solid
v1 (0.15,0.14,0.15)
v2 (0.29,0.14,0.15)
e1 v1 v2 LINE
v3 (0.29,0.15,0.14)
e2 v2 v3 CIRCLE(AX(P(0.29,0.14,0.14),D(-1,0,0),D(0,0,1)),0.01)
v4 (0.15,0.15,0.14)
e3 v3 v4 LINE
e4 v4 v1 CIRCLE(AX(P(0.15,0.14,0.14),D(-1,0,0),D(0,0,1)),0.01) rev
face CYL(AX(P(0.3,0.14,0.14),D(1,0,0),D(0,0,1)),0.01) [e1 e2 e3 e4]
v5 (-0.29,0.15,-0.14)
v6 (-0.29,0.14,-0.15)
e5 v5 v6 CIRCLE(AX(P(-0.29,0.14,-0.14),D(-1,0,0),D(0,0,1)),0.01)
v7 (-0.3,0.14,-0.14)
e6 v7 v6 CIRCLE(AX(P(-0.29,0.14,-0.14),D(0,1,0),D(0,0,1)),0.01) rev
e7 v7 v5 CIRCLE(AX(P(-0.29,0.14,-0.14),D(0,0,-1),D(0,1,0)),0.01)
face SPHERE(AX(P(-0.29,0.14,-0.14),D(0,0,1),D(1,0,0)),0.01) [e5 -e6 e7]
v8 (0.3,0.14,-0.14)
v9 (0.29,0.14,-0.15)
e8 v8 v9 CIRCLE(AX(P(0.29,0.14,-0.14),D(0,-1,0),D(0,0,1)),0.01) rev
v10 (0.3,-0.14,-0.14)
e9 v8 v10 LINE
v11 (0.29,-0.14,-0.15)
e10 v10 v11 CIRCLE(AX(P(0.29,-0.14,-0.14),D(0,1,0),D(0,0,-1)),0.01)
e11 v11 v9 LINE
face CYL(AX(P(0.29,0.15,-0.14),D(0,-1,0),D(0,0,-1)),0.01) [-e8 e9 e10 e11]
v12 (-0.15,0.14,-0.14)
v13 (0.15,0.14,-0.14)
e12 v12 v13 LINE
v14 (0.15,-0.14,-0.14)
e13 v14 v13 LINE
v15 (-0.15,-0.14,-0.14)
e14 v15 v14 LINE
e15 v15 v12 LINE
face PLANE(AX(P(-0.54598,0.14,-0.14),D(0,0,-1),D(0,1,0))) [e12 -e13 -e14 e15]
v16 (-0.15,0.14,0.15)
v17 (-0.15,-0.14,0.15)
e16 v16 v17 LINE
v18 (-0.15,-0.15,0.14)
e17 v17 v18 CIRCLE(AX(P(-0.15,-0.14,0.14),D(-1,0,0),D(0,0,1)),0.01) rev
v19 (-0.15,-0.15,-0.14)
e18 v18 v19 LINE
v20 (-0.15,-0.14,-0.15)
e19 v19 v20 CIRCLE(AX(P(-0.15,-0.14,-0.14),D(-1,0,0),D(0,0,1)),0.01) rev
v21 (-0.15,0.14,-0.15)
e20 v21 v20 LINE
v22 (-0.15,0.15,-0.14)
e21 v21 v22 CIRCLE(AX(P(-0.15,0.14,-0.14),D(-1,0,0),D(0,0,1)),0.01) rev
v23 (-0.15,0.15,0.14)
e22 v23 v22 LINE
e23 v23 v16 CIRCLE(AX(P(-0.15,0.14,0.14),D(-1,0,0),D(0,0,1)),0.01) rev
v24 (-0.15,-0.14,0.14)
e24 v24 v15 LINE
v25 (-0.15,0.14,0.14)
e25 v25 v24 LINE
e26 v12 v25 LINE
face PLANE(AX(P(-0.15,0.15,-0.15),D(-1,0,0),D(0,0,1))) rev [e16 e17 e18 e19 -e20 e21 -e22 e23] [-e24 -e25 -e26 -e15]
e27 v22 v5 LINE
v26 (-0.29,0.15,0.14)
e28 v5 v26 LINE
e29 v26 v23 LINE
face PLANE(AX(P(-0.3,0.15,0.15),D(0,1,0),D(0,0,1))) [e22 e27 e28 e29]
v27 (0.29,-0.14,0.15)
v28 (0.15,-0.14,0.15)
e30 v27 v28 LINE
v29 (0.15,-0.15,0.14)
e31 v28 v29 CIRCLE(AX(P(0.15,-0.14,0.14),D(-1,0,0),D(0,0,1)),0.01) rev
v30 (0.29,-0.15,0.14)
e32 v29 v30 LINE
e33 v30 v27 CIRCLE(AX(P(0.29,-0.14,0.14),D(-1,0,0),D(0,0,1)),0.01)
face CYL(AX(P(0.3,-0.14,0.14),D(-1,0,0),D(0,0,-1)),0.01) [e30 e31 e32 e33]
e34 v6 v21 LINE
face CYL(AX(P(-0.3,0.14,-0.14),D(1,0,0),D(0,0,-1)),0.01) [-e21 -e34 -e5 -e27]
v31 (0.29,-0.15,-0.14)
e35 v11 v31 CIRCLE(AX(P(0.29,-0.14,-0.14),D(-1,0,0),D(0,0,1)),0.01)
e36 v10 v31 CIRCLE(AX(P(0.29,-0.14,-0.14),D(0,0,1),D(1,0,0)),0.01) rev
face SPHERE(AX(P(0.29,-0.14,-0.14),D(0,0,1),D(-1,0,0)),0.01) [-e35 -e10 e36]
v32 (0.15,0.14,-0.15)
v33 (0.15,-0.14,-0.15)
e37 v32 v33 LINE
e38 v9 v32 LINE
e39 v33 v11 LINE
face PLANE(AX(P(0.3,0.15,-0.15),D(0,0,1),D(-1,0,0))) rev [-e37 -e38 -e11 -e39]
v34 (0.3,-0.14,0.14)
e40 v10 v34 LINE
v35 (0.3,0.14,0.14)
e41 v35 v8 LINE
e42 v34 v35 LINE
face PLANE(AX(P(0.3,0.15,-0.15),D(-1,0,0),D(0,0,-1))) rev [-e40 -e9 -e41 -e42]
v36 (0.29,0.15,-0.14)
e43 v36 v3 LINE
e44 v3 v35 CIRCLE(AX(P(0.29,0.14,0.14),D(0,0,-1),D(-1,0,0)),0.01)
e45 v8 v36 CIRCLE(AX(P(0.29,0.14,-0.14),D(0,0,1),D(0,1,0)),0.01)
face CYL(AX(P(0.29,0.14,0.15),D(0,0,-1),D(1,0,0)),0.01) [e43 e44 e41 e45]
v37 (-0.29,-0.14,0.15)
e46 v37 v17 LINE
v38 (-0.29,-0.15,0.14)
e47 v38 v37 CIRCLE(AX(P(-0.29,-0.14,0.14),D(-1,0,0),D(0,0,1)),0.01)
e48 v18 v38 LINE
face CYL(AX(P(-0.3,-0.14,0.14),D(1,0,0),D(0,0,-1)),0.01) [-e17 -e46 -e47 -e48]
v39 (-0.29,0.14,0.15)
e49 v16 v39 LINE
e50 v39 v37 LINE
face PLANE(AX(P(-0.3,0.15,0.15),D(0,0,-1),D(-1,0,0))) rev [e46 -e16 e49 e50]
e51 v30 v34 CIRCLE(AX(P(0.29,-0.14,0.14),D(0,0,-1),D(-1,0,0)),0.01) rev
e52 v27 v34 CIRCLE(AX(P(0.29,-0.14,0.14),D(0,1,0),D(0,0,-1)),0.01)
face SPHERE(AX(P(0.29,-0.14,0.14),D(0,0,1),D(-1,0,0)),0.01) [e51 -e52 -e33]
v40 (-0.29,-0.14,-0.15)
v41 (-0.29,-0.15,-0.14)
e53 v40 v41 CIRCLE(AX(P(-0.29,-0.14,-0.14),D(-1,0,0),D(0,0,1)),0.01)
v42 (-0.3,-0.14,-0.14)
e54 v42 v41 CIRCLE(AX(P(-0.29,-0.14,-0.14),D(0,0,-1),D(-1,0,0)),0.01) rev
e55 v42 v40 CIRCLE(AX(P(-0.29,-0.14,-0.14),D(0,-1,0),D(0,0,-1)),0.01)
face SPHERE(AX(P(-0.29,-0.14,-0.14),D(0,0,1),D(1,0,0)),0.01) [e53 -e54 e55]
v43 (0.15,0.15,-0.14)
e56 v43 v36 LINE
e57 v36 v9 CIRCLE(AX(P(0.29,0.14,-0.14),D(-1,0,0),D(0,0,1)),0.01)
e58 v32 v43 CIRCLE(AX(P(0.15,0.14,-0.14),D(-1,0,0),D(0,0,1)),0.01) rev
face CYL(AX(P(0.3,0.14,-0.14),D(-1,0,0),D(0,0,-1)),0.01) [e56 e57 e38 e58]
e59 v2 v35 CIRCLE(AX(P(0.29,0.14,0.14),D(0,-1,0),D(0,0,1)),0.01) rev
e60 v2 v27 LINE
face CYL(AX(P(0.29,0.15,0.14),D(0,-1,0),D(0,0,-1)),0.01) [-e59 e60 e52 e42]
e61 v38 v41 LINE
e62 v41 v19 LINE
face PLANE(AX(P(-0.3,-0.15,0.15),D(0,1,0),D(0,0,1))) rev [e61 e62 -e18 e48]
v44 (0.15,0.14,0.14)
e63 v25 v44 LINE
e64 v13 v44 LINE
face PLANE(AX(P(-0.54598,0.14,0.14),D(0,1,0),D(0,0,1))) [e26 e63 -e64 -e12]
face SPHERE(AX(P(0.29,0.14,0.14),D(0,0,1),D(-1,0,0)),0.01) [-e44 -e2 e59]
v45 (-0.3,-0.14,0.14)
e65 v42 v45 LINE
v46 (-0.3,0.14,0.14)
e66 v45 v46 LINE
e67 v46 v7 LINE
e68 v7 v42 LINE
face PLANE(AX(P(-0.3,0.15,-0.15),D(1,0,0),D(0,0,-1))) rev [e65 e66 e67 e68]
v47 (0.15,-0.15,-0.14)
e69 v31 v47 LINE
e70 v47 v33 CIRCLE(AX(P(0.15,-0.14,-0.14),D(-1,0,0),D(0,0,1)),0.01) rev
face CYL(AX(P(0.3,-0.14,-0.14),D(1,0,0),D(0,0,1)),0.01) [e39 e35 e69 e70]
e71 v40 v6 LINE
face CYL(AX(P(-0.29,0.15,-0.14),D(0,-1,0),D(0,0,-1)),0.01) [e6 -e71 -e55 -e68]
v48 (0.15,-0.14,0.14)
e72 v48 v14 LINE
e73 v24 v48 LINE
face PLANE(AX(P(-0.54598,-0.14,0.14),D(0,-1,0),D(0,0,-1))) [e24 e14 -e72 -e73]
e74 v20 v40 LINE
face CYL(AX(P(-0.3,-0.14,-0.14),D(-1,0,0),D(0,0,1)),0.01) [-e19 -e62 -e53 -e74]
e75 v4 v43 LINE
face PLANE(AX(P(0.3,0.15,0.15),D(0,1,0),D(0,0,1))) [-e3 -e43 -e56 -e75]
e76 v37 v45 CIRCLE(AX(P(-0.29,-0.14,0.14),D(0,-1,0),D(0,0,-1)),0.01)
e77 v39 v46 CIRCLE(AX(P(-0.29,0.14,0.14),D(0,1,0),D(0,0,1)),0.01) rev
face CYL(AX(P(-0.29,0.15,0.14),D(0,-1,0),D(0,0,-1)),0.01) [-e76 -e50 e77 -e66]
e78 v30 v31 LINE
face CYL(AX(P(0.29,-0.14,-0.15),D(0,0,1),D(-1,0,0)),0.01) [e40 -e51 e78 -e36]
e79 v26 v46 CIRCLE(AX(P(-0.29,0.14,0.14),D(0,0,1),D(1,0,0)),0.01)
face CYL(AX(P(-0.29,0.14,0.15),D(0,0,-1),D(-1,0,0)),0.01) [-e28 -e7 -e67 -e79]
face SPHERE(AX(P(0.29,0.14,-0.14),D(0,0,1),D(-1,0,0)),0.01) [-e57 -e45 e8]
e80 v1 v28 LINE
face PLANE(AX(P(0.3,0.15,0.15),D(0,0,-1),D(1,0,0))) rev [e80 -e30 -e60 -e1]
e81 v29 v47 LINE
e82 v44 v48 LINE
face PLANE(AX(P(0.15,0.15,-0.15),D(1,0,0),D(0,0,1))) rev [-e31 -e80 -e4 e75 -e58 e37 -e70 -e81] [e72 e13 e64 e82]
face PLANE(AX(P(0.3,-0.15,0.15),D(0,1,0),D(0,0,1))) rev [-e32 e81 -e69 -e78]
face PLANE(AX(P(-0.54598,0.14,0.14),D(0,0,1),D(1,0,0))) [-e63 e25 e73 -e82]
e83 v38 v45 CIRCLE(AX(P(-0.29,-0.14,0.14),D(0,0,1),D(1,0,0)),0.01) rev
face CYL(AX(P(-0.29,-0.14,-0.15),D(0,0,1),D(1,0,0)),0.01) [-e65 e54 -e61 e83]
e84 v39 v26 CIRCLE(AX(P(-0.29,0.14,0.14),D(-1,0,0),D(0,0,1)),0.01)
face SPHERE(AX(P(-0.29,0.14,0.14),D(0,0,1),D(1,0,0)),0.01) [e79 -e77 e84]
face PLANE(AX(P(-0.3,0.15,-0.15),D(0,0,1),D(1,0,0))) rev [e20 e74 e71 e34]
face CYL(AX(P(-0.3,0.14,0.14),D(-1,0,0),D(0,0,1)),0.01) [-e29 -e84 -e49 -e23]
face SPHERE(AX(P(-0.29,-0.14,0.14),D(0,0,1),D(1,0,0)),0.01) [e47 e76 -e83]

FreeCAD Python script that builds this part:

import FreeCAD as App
import Part
import Sketcher
Q = App.Units.Quantity


def edges_at(feature, points):
    """Names of the edges that pass closest to the given points."""
    edges = feature.Shape.Edges
    near = lambda p: min(range(len(edges)), key=lambda i: edges[i].distToShape(Part.Vertex(*p))[0])
    return sorted({f"Edge{near(p) + 1}" for p in points})

doc = App.newDocument("Part")
body = doc.addObject("PartDesign::Body", "Body")

sketch1 = body.newObject("Sketcher::SketchObject", "Sketch")
sketch1.AttachmentSupport = (doc.getObject("XZ_Plane"), [""])
sketch1.MapMode = "FlatFace"
sketch1.addGeometry(Part.LineSegment(App.Vector(-0.3, -0.15, 0), App.Vector(-0.3, 0.15, 0)), False)
sketch1.addGeometry(Part.LineSegment(App.Vector(-0.3, 0.15, 0), App.Vector(-0.15, 0.15, 0)), False)
sketch1.addGeometry(Part.LineSegment(App.Vector(-0.15, 0.15, 0), App.Vector(-0.15, -0.15, 0)), False)
sketch1.addGeometry(Part.LineSegment(App.Vector(-0.15, -0.15, 0), App.Vector(-0.3, -0.15, 0)), False)
sketch1.addConstraint(Sketcher.Constraint("Coincident", 0, 2, 1, 1))
sketch1.addConstraint(Sketcher.Constraint("Coincident", 1, 2, 2, 1))
sketch1.addConstraint(Sketcher.Constraint("Coincident", 2, 2, 3, 1))
sketch1.addConstraint(Sketcher.Constraint("Coincident", 3, 2, 0, 1))
sketch1.addConstraint(Sketcher.Constraint("Vertical", 0))
sketch1.addConstraint(Sketcher.Constraint("Horizontal", 1))
sketch1.addConstraint(Sketcher.Constraint("Vertical", 2))
sketch1.addConstraint(Sketcher.Constraint("Horizontal", 3))
sketch1.addConstraint(Sketcher.Constraint("DistanceY", 0, 1, 0, 2, Q("0.3 mm")))
sketch1.addConstraint(Sketcher.Constraint("DistanceX", 1, 1, 1, 2, Q("0.15 mm")))
sketch1.addConstraint(Sketcher.Constraint("DistanceX", 0, 2, -1, 1, Q("0.3 mm")))
sketch1.addConstraint(Sketcher.Constraint("DistanceY", -1, 1, 0, 2, Q("0.15 mm")))
pad1 = body.newObject("PartDesign::Pad", "Pad")
pad1.Profile = sketch1
pad1.Length = 0.3
pad1.Midplane = True
doc.recompute()

fillet = body.newObject("PartDesign::Fillet", "Fillet")
fillet.Base = (pad1, edges_at(pad1, [
    (-0.225, 0.15, -0.15),
    (-0.3, 0.15, 0),
    (-0.225, -0.15, -0.15),
    (-0.225, -0.15, 0.15),
    (-0.3, -0.15, 0),
    (-0.225, 0.15, 0.15),
    (-0.3, 0, -0.15),
    (-0.3, 0, 0.15),
]))
fillet.Radius = 0.01

sketch2 = body.newObject("Sketcher::SketchObject", "Sketch001")
sketch2.AttachmentSupport = (doc.getObject("YZ_Plane"), [""])
sketch2.MapMode = "FlatFace"
sketch2.addGeometry(Part.LineSegment(App.Vector(0.14, 0.14, 0), App.Vector(-0.14, 0.14, 0)), False)
sketch2.addGeometry(Part.LineSegment(App.Vector(-0.14, 0.14, 0), App.Vector(-0.14, -0.14, 0)), False)
sketch2.addGeometry(Part.LineSegment(App.Vector(-0.14, -0.14, 0), App.Vector(0.14, -0.14, 0)), False)
sketch2.addGeometry(Part.LineSegment(App.Vector(0.14, -0.14, 0), App.Vector(0.14, 0.14, 0)), False)
sketch2.addConstraint(Sketcher.Constraint("Coincident", 0, 2, 1, 1))
sketch2.addConstraint(Sketcher.Constraint("Coincident", 1, 2, 2, 1))
sketch2.addConstraint(Sketcher.Constraint("Coincident", 2, 2, 3, 1))
sketch2.addConstraint(Sketcher.Constraint("Coincident", 3, 2, 0, 1))
sketch2.addConstraint(Sketcher.Constraint("Horizontal", 0))
sketch2.addConstraint(Sketcher.Constraint("Vertical", 1))
sketch2.addConstraint(Sketcher.Constraint("Horizontal", 2))
sketch2.addConstraint(Sketcher.Constraint("Vertical", 3))
sketch2.addConstraint(Sketcher.Constraint("Symmetric", 0, 2, 2, 2, -1, 1))
sketch2.addConstraint(Sketcher.Constraint("Equal", 2, 1))
sketch2.addConstraint(Sketcher.Constraint("DistanceX", 0, 2, 0, 1, Q("0.28 mm")))
pad2 = body.newObject("PartDesign::Pad", "Pad001")
pad2.Profile = sketch2
pad2.Length = 0.15
pad2.Reversed = True
doc.recompute()

mirrored = body.newObject("PartDesign::Mirrored", "Mirrored")
mirrored.Originals = [pad1, pad2]
mirrored.MirrorPlane = (doc.getObject("YZ_Plane"), [""])
body.Tip = mirrored
doc.recompute()

fillet2 = body.newObject("PartDesign::Fillet", "Fillet001")
fillet2.Base = (mirrored, edges_at(mirrored, [
    (0.225, 0.15, -0.15),
    (0.3, 0.15, 0),
    (0.225, -0.15, -0.15),
    (0.225, -0.15, 0.15),
    (0.3, -0.15, 0),
    (0.225, 0.15, 0.15),
    (0.3, 0, -0.15),
    (0.3, 0, 0.15),
]))
fillet2.Radius = 0.01

doc.recompute()
